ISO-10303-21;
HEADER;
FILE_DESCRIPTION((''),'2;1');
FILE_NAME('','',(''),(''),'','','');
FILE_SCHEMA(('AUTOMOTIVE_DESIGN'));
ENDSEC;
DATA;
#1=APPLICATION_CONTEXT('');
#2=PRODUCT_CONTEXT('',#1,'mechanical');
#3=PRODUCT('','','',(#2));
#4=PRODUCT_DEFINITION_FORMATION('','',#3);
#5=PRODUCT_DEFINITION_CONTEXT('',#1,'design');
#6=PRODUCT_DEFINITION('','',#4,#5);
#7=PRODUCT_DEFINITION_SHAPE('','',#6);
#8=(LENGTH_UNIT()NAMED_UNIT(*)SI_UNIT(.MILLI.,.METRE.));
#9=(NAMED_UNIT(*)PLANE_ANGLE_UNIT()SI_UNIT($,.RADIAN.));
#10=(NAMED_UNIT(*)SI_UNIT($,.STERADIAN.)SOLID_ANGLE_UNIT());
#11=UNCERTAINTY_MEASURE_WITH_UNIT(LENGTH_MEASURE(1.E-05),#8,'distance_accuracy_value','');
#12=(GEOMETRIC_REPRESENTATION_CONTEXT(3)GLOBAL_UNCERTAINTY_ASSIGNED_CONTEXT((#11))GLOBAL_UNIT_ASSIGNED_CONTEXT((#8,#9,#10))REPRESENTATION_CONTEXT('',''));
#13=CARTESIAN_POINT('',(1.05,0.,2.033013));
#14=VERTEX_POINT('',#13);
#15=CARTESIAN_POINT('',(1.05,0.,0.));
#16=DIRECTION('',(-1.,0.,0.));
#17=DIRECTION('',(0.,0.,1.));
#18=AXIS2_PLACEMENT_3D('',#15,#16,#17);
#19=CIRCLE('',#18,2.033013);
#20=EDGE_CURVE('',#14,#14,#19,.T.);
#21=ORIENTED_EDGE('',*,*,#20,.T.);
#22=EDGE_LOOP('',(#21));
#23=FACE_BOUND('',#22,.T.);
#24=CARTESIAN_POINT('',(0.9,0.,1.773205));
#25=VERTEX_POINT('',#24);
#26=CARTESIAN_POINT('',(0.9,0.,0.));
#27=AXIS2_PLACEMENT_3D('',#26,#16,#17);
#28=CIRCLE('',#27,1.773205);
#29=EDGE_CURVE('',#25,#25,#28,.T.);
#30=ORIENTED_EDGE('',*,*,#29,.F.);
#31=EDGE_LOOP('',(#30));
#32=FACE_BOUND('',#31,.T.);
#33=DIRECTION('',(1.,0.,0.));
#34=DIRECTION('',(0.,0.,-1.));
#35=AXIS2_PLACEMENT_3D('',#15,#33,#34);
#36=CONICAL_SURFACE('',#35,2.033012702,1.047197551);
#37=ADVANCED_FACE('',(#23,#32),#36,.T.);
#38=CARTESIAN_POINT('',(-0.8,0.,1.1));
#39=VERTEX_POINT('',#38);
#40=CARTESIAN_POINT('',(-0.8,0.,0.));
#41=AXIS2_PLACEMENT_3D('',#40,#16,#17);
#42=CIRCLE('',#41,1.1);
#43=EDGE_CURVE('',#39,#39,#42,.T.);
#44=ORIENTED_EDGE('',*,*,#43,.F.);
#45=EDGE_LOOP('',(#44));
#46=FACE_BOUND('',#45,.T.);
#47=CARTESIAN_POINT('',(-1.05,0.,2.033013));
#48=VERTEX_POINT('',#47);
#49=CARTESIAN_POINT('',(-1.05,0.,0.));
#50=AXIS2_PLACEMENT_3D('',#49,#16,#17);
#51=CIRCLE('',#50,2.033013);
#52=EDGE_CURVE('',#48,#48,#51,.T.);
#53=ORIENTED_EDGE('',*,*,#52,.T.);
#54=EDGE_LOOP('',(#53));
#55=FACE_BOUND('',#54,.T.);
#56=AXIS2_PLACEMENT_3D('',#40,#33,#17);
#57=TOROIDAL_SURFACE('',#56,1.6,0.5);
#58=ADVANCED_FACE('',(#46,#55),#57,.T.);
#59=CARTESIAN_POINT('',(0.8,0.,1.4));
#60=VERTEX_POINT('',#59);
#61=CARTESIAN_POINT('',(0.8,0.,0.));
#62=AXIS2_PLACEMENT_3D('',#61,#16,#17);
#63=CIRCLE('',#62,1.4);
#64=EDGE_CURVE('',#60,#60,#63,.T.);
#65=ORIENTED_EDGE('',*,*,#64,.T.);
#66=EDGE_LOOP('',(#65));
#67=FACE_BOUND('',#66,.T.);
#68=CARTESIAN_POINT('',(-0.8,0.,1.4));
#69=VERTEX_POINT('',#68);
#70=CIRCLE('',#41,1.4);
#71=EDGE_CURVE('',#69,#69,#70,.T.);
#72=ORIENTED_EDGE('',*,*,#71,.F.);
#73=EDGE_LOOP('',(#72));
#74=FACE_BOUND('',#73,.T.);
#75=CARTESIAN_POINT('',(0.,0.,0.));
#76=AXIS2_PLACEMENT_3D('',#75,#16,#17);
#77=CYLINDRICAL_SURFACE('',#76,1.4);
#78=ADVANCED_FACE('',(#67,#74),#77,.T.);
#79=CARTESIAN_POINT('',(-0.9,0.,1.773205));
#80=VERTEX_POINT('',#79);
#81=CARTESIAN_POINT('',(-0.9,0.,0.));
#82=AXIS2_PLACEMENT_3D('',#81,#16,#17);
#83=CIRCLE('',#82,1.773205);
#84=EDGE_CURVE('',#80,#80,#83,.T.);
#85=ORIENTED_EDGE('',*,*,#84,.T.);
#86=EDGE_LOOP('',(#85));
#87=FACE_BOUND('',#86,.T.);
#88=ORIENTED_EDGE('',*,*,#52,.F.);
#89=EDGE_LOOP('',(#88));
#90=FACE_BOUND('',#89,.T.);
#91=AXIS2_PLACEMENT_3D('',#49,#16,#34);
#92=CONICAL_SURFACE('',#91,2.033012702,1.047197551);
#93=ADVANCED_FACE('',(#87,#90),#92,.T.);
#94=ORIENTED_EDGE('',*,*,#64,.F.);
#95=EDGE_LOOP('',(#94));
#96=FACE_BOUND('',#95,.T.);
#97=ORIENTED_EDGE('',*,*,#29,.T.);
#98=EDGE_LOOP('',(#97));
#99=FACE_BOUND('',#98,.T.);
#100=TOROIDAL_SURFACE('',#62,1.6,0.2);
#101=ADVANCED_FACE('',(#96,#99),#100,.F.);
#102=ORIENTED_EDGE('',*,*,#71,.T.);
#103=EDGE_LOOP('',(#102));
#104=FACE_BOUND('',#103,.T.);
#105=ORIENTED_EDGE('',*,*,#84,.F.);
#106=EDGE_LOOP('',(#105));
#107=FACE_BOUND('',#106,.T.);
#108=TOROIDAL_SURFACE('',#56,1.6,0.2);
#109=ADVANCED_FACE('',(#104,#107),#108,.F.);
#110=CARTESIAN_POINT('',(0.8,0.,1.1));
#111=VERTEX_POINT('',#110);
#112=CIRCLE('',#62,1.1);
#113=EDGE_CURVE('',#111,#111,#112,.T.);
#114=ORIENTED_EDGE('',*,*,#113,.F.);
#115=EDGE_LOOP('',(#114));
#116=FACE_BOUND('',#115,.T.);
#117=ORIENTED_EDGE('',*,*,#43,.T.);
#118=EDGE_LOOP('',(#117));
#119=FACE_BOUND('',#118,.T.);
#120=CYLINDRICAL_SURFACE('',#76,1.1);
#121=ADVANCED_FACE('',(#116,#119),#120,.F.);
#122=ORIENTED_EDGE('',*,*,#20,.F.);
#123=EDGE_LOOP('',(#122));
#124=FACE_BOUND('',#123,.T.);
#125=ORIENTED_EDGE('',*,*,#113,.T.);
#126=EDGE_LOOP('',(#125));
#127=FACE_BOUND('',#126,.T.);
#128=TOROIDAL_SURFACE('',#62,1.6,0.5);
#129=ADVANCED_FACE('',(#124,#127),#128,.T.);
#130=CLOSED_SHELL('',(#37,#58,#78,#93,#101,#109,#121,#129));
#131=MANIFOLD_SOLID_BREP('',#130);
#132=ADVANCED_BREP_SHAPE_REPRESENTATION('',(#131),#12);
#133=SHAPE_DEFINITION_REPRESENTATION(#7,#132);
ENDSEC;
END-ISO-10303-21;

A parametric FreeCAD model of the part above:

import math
import FreeCAD as App
import Part
import Sketcher
from FreeCAD import Vector
Q = App.Units.Quantity

doc = App.newDocument("Part")
body = doc.addObject("PartDesign::Body", "Body")

sketch1 = doc.addObject("Sketcher::SketchObject", "Sketch")
body.addObject(sketch1)
sketch1.AttachmentSupport = (doc.XY_Plane, [""])
sketch1.MapMode = "FlatFace"
sketch1.addGeometry([
    Part.LineSegment(Vector(0, 1.1, 0), Vector(0.8, 1.1, 0)),
    Part.ArcOfCircle(Part.Circle(Vector(0.8, 1.6, 0), Vector(0, 0, 1), 0.5), math.radians(-90), math.radians(60)),
    Part.LineSegment(Vector(1.05, 2.03, 0), Vector(0.9, 1.77, 0)),
    Part.ArcOfCircle(Part.Circle(Vector(0.8, 1.6, 0), Vector(0, 0, 1), 0.2), math.radians(-90), math.radians(60)),
    Part.LineSegment(Vector(0.8, 1.4, 0), Vector(0, 1.4, 0)),
    Part.LineSegment(Vector(0, 1.4, 0), Vector(0, 1.1, 0)),
], False)
sketch1.addConstraint([
    Sketcher.Constraint("Tangent", 0, 2, 1, 1),
    Sketcher.Constraint("Coincident", 1, 2, 2, 1),
    Sketcher.Constraint("Coincident", 2, 2, 3, 2),
    Sketcher.Constraint("Tangent", 3, 1, 4, 1),
    Sketcher.Constraint("Coincident", 4, 2, 5, 1),
    Sketcher.Constraint("Coincident", 5, 2, 0, 1),
    Sketcher.Constraint("Horizontal", 0),
    Sketcher.Constraint("Horizontal", 4),
    Sketcher.Constraint("Vertical", 5),
    Sketcher.Constraint("Coincident", 3, 3, 1, 3),
    Sketcher.Constraint("PointOnObject", 4, 2, -2),
    Sketcher.Constraint("Radius", 1, Q("0.5 mm")),
    Sketcher.Constraint("Radius", 3, Q("0.2 mm")),
    Sketcher.Constraint("Angle", 2, Q("-120 deg")),
    Sketcher.Constraint("DistanceX", 0, 1, 0, 2, Q("0.8 mm")),
    Sketcher.Constraint("DistanceY", -1, 1, 1, 3, Q("1.6 mm")),
    Sketcher.Constraint("DistanceX", -1, 1, 2, 2, Q("0.9 mm")),
])
revolution = doc.addObject("PartDesign::Revolution", "Revolution")
body.addObject(revolution)
revolution.Profile = sketch1
revolution.ReferenceAxis = (sketch1, ["H_Axis"])
revolution.Angle = 360
doc.recompute()

mirrored = doc.addObject("PartDesign::Mirrored", "Mirrored")
body.addObject(mirrored)
mirrored.Originals = [revolution]
mirrored.MirrorPlane = (doc.YZ_Plane, [""])
body.Tip = mirrored

doc.recompute()
